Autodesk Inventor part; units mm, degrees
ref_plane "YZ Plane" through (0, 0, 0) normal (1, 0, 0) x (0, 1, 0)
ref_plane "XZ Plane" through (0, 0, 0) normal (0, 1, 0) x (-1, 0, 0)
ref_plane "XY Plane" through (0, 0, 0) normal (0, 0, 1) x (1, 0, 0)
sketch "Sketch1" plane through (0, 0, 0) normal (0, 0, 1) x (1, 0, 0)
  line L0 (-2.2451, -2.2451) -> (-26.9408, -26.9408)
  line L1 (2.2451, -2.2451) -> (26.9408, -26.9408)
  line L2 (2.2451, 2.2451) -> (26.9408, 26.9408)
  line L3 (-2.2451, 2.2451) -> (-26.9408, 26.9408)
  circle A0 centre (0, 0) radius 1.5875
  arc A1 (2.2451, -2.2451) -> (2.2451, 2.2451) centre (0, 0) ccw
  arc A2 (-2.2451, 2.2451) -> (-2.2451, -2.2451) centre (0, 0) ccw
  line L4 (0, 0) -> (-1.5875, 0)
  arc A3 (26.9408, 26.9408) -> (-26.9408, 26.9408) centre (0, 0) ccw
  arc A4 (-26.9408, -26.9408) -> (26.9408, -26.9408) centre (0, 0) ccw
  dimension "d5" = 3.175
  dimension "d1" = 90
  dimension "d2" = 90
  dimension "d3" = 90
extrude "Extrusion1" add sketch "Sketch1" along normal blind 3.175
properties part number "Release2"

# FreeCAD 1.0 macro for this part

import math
import FreeCAD as App
import Part
import Sketcher
Q = App.Units.Quantity

doc = App.newDocument("Part")
params = doc.addObject("Spreadsheet::Sheet", "Params")
for row, (alias, value) in enumerate([
    ("sketch1_diameter", "0.125 in"),
    ("sketch1_radius", "0.125 in"),
    ("sketch1_radius2", "1.5 in"),
    ("pad1_length", "0.125 in"),
], start=1):
    params.set(f"A{row}", alias)
    params.set(f"B{row}", "=" + value)
    params.setAlias(f"B{row}", alias)

body = doc.addObject("PartDesign::Body", "Body")

# Sketch on XY plane
sketch1 = body.newObject("Sketcher::SketchObject", "Sketch")
sketch1.AttachmentSupport = (doc.getObject("XY_Plane"), [""])
sketch1.MapMode = "FlatFace"
sketch1.addGeometry([
    Part.ArcOfCircle(Part.Circle(App.Vector(0, 0, 0), App.Vector(0, 0, 1), 3.175051), math.radians(135), math.radians(225)),  # 0
    Part.LineSegment(App.Vector(-2.2451, -2.2451, 0), App.Vector(-26.9408, -26.9408, 0)),  # 1
    Part.ArcOfCircle(Part.Circle(App.Vector(0, 0, 0), App.Vector(0, 0, 1), 38.100045), math.radians(-135), math.radians(-45)),  # 2
    Part.LineSegment(App.Vector(26.9408, -26.9408, 0), App.Vector(2.2451, -2.2451, 0)),  # 3
    Part.ArcOfCircle(Part.Circle(App.Vector(0, 0, 0), App.Vector(0, 0, 1), 3.175051), math.radians(-45), math.radians(45)),  # 4
    Part.LineSegment(App.Vector(2.2451, 2.2451, 0), App.Vector(26.9408, 26.9408, 0)),  # 5
    Part.ArcOfCircle(Part.Circle(App.Vector(0, 0, 0), App.Vector(0, 0, 1), 38.100045), math.radians(45), math.radians(135)),  # 6
    Part.LineSegment(App.Vector(-26.9408, 26.9408, 0), App.Vector(-2.2451, 2.2451, 0)),  # 7
    Part.Circle(App.Vector(0, 0, 0), App.Vector(0, 0, 1), 1.5875),  # 8
], False)
sketch1.addConstraint([
    Sketcher.Constraint("Coincident", 0, 2, 1, 1),
    Sketcher.Constraint("Coincident", 1, 2, 2, 1),
    Sketcher.Constraint("Coincident", 2, 2, 3, 1),
    Sketcher.Constraint("Coincident", 3, 2, 4, 1),
    Sketcher.Constraint("Coincident", 4, 2, 5, 1),
    Sketcher.Constraint("Coincident", 5, 2, 6, 1),
    Sketcher.Constraint("Coincident", 6, 2, 7, 1),
    Sketcher.Constraint("Coincident", 7, 2, 0, 1),
    Sketcher.Constraint("Coincident", 0, 3, -1, 1),
    Sketcher.Constraint("Coincident", 2, 3, -1, 1),
    Sketcher.Constraint("Coincident", 4, 3, -1, 1),
    Sketcher.Constraint("Coincident", 6, 3, -1, 1),
    Sketcher.Constraint("Coincident", 8, 3, -1, 1),
    Sketcher.Constraint("Equal", 0, 4),
    Sketcher.Constraint("Equal", 2, 6),
    Sketcher.Constraint("Perpendicular", 1, 3),
    Sketcher.Constraint("Perpendicular", 3, 5),
    Sketcher.Constraint("Perpendicular", 5, 7),
    Sketcher.Constraint("Horizontal", 1, 2, 2, 2),
    Sketcher.Constraint("Horizontal", 0, 2, 3, 2),
    Sketcher.Constraint("Horizontal", 5, 2, 6, 2),
    Sketcher.Constraint("Vertical", 3, 2, 4, 2),
    Sketcher.Constraint("Diameter", 8, Q("0.125 in")),
    Sketcher.Constraint("Radius", 0, Q("0.125 in")),
    Sketcher.Constraint("Radius", 2, Q("1.5 in")),
    Sketcher.Constraint("DistanceX", 0, 2, -1, 1, Q("0.0884 in")),
])
sketch1.setExpression("Constraints[22]", "Params.sketch1_diameter")
sketch1.setExpression("Constraints[23]", "Params.sketch1_radius")
sketch1.setExpression("Constraints[24]", "Params.sketch1_radius2")
pad1 = body.newObject("PartDesign::Pad", "Pad")
pad1.Profile = sketch1
pad1.setExpression("Length", "Params.pad1_length")

doc.recompute()
